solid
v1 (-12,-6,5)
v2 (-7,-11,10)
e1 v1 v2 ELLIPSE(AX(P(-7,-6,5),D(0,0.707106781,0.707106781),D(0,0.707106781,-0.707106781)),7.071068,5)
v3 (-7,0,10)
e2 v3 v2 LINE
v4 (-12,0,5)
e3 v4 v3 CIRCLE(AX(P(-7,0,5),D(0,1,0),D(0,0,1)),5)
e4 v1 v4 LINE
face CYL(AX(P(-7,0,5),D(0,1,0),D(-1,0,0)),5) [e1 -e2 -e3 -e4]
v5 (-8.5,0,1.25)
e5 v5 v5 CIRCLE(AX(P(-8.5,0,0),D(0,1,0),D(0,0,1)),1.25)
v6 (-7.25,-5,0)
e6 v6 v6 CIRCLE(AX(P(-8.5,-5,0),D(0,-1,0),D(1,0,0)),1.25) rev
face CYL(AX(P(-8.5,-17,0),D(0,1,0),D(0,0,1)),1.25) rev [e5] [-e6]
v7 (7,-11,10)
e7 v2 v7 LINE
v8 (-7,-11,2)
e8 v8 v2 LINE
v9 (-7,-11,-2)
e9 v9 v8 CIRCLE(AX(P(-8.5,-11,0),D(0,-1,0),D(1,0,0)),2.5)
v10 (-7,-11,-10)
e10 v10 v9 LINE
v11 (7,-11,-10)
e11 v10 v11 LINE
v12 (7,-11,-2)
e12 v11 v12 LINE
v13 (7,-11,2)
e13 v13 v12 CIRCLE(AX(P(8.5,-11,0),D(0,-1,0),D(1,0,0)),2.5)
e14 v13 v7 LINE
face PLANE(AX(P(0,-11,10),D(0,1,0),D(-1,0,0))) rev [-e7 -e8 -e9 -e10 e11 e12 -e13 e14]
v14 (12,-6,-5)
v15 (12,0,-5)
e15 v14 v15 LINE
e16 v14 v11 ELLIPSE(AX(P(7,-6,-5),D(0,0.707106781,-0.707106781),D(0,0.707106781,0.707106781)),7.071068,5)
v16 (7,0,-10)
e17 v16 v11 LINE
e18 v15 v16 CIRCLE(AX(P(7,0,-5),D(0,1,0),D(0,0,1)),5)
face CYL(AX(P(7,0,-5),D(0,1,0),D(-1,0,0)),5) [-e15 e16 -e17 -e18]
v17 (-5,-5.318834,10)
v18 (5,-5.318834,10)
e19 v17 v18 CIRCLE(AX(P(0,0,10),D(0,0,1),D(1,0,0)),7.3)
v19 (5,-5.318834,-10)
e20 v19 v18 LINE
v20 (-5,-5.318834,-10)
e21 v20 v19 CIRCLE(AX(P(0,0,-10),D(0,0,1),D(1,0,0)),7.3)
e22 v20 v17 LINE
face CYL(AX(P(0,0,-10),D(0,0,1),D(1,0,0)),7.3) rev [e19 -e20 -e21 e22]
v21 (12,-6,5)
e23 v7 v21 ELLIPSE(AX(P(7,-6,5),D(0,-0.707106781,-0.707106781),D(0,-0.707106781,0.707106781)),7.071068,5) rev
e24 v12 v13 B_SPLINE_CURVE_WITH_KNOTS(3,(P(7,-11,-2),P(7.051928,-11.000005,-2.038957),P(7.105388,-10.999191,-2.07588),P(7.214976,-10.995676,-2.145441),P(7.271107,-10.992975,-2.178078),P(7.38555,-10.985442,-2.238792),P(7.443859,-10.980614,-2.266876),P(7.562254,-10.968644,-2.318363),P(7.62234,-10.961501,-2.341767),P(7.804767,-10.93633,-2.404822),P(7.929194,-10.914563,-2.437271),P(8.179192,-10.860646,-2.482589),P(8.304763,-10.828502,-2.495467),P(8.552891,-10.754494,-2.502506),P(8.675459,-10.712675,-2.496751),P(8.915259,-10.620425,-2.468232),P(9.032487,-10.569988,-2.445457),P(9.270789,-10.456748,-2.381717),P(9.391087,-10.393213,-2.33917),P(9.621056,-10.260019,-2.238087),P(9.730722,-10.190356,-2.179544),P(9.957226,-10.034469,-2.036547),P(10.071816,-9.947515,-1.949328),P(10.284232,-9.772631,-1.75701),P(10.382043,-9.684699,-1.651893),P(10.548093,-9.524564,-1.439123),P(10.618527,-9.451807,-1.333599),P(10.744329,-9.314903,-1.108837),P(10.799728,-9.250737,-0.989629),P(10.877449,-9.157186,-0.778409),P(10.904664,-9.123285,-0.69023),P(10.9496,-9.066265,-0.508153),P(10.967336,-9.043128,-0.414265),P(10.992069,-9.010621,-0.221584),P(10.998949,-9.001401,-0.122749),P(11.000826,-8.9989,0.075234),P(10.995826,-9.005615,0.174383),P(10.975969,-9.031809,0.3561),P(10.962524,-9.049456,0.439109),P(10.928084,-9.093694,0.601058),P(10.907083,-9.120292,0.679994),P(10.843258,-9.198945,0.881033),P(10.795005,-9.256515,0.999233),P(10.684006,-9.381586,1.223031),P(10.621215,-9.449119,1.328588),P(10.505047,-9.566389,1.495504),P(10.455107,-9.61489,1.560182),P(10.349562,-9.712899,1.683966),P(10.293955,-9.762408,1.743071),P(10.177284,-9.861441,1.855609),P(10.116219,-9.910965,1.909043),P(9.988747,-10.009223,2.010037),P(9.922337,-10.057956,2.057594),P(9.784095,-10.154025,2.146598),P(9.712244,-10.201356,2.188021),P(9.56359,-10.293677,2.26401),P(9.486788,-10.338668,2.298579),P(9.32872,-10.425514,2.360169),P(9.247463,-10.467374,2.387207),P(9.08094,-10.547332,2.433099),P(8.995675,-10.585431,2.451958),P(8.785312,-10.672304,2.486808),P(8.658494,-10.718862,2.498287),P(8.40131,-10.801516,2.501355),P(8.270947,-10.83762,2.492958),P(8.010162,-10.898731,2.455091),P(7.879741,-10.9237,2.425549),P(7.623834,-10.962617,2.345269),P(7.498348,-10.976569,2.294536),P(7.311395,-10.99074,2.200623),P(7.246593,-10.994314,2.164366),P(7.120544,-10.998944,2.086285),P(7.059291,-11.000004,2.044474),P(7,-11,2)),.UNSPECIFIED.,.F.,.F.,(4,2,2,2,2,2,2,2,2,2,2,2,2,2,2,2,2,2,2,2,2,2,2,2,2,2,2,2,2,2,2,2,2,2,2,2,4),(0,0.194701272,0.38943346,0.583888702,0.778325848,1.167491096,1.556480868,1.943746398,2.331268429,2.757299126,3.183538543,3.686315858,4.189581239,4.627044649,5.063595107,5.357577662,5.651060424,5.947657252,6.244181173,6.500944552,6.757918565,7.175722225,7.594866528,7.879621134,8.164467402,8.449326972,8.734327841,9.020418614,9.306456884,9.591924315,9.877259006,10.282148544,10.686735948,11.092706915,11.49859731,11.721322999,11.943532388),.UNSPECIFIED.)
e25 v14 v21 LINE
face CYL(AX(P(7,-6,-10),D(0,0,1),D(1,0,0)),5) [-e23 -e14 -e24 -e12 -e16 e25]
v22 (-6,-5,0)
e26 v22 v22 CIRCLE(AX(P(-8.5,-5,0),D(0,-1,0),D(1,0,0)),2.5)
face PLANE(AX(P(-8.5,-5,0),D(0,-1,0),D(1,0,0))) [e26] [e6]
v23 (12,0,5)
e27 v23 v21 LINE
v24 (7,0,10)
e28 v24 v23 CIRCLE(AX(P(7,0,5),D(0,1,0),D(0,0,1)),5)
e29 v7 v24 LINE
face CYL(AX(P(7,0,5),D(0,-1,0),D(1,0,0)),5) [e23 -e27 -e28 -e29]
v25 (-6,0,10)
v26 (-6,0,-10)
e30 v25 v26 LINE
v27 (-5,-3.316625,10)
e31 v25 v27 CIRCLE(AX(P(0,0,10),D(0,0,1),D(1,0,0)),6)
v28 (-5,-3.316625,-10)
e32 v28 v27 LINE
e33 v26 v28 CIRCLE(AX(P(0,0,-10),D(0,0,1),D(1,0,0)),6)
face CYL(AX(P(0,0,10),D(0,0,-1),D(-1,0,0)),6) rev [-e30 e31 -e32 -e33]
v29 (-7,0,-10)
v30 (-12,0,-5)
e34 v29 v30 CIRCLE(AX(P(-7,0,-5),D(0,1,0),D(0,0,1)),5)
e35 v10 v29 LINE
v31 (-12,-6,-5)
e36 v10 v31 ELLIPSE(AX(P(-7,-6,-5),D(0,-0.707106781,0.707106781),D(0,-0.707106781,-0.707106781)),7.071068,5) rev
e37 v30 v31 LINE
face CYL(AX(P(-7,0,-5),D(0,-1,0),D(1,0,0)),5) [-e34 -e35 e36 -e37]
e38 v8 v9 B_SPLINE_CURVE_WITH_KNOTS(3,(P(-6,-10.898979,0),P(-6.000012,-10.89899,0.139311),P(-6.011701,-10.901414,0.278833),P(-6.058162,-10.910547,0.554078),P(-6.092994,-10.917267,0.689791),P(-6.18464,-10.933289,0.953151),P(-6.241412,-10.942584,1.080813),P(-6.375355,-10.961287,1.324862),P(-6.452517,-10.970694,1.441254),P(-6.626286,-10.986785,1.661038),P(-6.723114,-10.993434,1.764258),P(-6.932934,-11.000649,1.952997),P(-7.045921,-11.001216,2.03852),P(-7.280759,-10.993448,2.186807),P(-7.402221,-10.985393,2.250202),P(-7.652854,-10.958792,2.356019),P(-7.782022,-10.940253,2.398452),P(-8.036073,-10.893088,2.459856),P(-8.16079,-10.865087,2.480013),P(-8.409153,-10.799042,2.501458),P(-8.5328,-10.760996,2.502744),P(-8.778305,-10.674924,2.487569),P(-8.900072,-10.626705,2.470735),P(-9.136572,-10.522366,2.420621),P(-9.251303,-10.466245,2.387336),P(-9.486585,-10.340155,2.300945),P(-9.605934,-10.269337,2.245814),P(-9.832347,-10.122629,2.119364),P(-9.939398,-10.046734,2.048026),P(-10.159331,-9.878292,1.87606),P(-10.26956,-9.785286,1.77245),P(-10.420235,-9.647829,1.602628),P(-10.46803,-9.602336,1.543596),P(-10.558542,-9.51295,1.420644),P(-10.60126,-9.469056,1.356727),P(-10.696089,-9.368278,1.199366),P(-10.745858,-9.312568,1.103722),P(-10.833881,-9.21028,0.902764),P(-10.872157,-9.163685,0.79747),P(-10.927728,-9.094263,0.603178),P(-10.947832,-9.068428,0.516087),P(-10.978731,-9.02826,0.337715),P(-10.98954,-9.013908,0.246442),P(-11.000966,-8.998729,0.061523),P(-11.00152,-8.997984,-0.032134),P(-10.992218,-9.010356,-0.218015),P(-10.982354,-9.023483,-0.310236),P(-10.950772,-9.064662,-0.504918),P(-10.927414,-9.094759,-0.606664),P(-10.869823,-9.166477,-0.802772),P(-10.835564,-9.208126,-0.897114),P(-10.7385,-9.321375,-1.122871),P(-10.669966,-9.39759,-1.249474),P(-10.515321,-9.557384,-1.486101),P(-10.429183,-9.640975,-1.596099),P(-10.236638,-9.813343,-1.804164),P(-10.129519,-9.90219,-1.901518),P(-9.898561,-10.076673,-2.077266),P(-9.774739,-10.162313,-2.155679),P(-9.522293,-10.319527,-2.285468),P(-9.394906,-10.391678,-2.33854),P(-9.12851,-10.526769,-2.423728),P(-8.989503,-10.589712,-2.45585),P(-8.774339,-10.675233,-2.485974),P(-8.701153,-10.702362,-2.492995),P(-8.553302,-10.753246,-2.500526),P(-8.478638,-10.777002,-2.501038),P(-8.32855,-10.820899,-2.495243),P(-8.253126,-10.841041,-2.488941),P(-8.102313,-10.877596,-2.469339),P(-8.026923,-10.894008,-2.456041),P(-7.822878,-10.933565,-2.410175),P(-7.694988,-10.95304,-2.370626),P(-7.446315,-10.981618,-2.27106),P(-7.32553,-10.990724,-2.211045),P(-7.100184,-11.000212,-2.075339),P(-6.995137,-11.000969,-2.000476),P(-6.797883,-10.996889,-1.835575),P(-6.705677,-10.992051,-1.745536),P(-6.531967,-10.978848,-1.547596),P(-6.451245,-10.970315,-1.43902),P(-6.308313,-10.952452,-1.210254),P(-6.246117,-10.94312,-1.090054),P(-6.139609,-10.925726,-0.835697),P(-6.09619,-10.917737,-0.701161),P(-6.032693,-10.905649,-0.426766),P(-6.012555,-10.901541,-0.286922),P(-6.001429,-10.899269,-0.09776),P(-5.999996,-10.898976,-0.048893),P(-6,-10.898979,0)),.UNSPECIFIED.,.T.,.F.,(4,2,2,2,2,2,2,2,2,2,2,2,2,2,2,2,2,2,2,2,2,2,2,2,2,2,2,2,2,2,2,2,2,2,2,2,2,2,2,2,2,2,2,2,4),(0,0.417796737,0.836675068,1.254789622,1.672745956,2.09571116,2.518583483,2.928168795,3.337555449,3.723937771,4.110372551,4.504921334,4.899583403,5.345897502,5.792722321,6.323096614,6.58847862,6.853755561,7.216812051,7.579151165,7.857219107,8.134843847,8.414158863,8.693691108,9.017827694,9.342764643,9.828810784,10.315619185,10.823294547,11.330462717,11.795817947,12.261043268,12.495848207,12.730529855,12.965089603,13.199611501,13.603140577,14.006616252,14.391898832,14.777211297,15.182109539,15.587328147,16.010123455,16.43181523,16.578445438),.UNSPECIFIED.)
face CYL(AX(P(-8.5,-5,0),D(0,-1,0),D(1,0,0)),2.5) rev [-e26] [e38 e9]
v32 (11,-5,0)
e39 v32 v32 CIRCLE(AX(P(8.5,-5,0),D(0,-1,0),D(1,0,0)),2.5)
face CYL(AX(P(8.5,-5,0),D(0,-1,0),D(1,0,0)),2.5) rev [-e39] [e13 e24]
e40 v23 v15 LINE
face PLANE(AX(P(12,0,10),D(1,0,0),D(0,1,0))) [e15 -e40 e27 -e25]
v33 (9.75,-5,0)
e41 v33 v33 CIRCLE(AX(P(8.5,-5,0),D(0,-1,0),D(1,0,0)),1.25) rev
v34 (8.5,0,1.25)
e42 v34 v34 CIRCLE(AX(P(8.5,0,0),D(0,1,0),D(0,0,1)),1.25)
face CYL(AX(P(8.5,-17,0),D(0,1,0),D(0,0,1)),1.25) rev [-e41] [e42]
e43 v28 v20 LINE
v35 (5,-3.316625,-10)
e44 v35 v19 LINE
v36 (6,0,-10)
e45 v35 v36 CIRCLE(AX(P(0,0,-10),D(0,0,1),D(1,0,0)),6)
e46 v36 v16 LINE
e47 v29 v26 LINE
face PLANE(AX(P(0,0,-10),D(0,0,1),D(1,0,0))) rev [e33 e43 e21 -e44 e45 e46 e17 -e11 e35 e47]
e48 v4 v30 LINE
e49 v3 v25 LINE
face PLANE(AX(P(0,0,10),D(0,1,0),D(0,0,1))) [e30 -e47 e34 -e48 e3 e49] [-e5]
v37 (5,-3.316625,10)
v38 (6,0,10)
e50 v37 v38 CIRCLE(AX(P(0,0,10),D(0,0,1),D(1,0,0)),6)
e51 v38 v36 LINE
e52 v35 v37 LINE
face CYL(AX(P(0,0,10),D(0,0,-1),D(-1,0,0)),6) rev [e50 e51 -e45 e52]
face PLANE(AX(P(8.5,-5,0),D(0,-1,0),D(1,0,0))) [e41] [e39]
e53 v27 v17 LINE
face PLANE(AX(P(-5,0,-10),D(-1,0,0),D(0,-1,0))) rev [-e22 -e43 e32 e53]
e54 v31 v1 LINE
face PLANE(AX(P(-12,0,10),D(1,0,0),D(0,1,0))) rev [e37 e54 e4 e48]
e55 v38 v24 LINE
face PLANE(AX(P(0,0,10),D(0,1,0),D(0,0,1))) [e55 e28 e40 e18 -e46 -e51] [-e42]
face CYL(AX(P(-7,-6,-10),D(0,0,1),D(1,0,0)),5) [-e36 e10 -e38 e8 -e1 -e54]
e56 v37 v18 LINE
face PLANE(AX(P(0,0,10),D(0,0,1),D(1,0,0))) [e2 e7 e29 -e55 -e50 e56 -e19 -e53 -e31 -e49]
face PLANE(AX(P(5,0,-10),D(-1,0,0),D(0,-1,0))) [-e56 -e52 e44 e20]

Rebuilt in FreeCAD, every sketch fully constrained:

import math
import FreeCAD as App
import Part
import Sketcher
from FreeCAD import Vector
Q = App.Units.Quantity


def edges_at(feature, points):
    """Names of the edges that pass closest to the given points."""
    edges = feature.Shape.Edges
    near = lambda p: min(range(len(edges)), key=lambda i: edges[i].distToShape(Part.Vertex(*p))[0])
    return sorted({f"Edge{near(p) + 1}" for p in points})

doc = App.newDocument("Part")
body = doc.addObject("PartDesign::Body", "Body")

# Sketch on XY plane
sketch1 = doc.addObject("Sketcher::SketchObject", "Sketch")
body.addObject(sketch1)
sketch1.AttachmentSupport = (doc.XY_Plane, [""])
sketch1.MapMode = "FlatFace"
sketch1.addGeometry(Part.LineSegment(Vector(12, 0, 0), Vector(6, 0, 0)), False)
sketch1.addGeometry(Part.ArcOfCircle(Part.Circle(Vector(0, 0, 0), Vector(0, 0, 1), 6), math.radians(180), math.radians(360)), False)
sketch1.addGeometry(Part.LineSegment(Vector(-6, 0, 0), Vector(-12, 0, 0)), False)
sketch1.addGeometry(Part.LineSegment(Vector(-12, 0, 0), Vector(-12, -11, 0)), False)
sketch1.addGeometry(Part.LineSegment(Vector(-12, -11, 0), Vector(12, -11, 0)), False)
sketch1.addGeometry(Part.LineSegment(Vector(12, -11, 0), Vector(12, 0, 0)), False)
sketch1.addConstraint(Sketcher.Constraint("Coincident", 0, 2, 1, 2))
sketch1.addConstraint(Sketcher.Constraint("Coincident", 1, 1, 2, 1))
sketch1.addConstraint(Sketcher.Constraint("Coincident", 2, 2, 3, 1))
sketch1.addConstraint(Sketcher.Constraint("Coincident", 3, 2, 4, 1))
sketch1.addConstraint(Sketcher.Constraint("Coincident", 4, 2, 5, 1))
sketch1.addConstraint(Sketcher.Constraint("Coincident", 5, 2, 0, 1))
sketch1.addConstraint(Sketcher.Constraint("Horizontal", 0))
sketch1.addConstraint(Sketcher.Constraint("Horizontal", 2))
sketch1.addConstraint(Sketcher.Constraint("Vertical", 3))
sketch1.addConstraint(Sketcher.Constraint("Horizontal", 4))
sketch1.addConstraint(Sketcher.Constraint("Vertical", 5))
sketch1.addConstraint(Sketcher.Constraint("Coincident", 1, 3, -1, 1))
sketch1.addConstraint(Sketcher.Constraint("Symmetric", 2, 2, 5, 2, -1, 1))
sketch1.addConstraint(Sketcher.Constraint("PointOnObject", 0, 2, -1))
sketch1.addConstraint(Sketcher.Constraint("Radius", 1, Q("6 mm")))
sketch1.addConstraint(Sketcher.Constraint("DistanceX", 0, 2, 0, 1, Q("6 mm")))
sketch1.addConstraint(Sketcher.Constraint("DistanceY", 3, 2, 3, 1, Q("11 mm")))
pad1 = doc.addObject("PartDesign::Pad", "Pad")
body.addObject(pad1)
pad1.Profile = sketch1
pad1.Length = 20
pad1.Midplane = True

# Sketch on XY plane
sketch2 = doc.addObject("Sketcher::SketchObject", "Sketch001")
body.addObject(sketch2)
sketch2.AttachmentSupport = (doc.XY_Plane, [""])
sketch2.MapMode = "FlatFace"
sketch2.addGeometry(Part.ArcOfCircle(Part.Circle(Vector(0, 0, 0), Vector(0, 0, 1), 7), math.radians(-133), math.radians(-47)), False)
sketch2.addGeometry(Part.LineSegment(Vector(5, -5, 0), Vector(5, 0, 0)), False)
sketch2.addGeometry(Part.LineSegment(Vector(5, 0, 0), Vector(-5, 0, 0)), False)
sketch2.addGeometry(Part.LineSegment(Vector(-5, 0, 0), Vector(-5, -5, 0)), False)
sketch2.addConstraint(Sketcher.Constraint("Coincident", 0, 2, 1, 1))
sketch2.addConstraint(Sketcher.Constraint("Coincident", 1, 2, 2, 1))
sketch2.addConstraint(Sketcher.Constraint("Coincident", 2, 2, 3, 1))
sketch2.addConstraint(Sketcher.Constraint("Coincident", 3, 2, 0, 1))
sketch2.addConstraint(Sketcher.Constraint("Vertical", 1))
sketch2.addConstraint(Sketcher.Constraint("Horizontal", 2))
sketch2.addConstraint(Sketcher.Constraint("Vertical", 3))
sketch2.addConstraint(Sketcher.Constraint("Coincident", 0, 3, -1, 1))
sketch2.addConstraint(Sketcher.Constraint("Symmetric", 1, 2, 2, 2, -1, 1))
sketch2.addConstraint(Sketcher.Constraint("Radius", 0, Q("7.3 mm")))
sketch2.addConstraint(Sketcher.Constraint("DistanceX", 2, 2, 2, 1, Q("10 mm")))
pocket1 = doc.addObject("PartDesign::Pocket", "Pocket")
body.addObject(pocket1)
pocket1.Profile = sketch2
pocket1.Type = "ThroughAll"
pocket1.Midplane = True

# Sketch on XZ plane
sketch3 = doc.addObject("Sketcher::SketchObject", "Sketch002")
body.addObject(sketch3)
sketch3.AttachmentSupport = (doc.XZ_Plane, [""])
sketch3.MapMode = "FlatFace"
sketch3.addGeometry(Part.Circle(Vector(-8.5, 0, 0), Vector(0, 0, 1), 1.2), False)
sketch3.addGeometry(Part.Circle(Vector(8.5, 0, 0), Vector(0, 0, 1), 1.2), False)
sketch3.addConstraint(Sketcher.Constraint("Equal", 0, 1))
sketch3.addConstraint(Sketcher.Constraint("Symmetric", 0, 3, 1, 3, -1, 1))
sketch3.addConstraint(Sketcher.Constraint("PointOnObject", 0, 3, -1))
sketch3.addConstraint(Sketcher.Constraint("Diameter", 0, Q("2.5 mm")))
sketch3.addConstraint(Sketcher.Constraint("DistanceX", 0, 3, 1, 3, Q("17 mm")))
pocket2 = doc.addObject("PartDesign::Pocket", "Pocket001")
body.addObject(pocket2)
pocket2.Profile = sketch3
pocket2.Length = 17
pocket2.Reversed = True
doc.recompute()

fillet = doc.addObject("PartDesign::Fillet", "Fillet")
body.addObject(fillet)
fillet.Base = (pocket2, edges_at(pocket2, [
    (12, -5.5, 10),
    (-12, -5.5, 10),
    (-12, -5.5, -10),
    (12, -5.5, -10),
]))
fillet.Radius = 5

# Sketch on XY plane
sketch4 = doc.addObject("Sketcher::SketchObject", "Sketch003")
body.addObject(sketch4)
sketch4.AttachmentSupport = (doc.XY_Plane, [""])
sketch4.MapMode = "FlatFace"
sketch4.addGeometry(Part.ArcOfCircle(Part.Circle(Vector(7, -6, 0), Vector(0, 0, 1), 5), math.radians(-90), math.radians(0)), False)
sketch4.addGeometry(Part.LineSegment(Vector(7, -11, 0), Vector(12, -11, 0)), False)
sketch4.addGeometry(Part.LineSegment(Vector(12, -11, 0), Vector(12, -6, 0)), False)
sketch4.addGeometry(Part.ArcOfCircle(Part.Circle(Vector(-7, -6, 0), Vector(0, 0, 1), 5), math.radians(180), math.radians(270)), False)
sketch4.addGeometry(Part.LineSegment(Vector(-12, -6, 0), Vector(-12, -11, 0)), False)
sketch4.addGeometry(Part.LineSegment(Vector(-12, -11, 0), Vector(-7, -11, 0)), False)
sketch4.addConstraint(Sketcher.Constraint("Tangent", 0, 1, 1, 1))
sketch4.addConstraint(Sketcher.Constraint("Coincident", 1, 2, 2, 1))
sketch4.addConstraint(Sketcher.Constraint("Tangent", 2, 2, 0, 2))
sketch4.addConstraint(Sketcher.Constraint("Tangent", 3, 1, 4, 1))
sketch4.addConstraint(Sketcher.Constraint("Coincident", 4, 2, 5, 1))
sketch4.addConstraint(Sketcher.Constraint("Tangent", 5, 2, 3, 2))
sketch4.addConstraint(Sketcher.Constraint("Horizontal", 1))
sketch4.addConstraint(Sketcher.Constraint("Vertical", 2))
sketch4.addConstraint(Sketcher.Constraint("Vertical", 4))
sketch4.addConstraint(Sketcher.Constraint("Horizontal", 5))
sketch4.addConstraint(Sketcher.Constraint("Equal", 0, 3))
sketch4.addConstraint(Sketcher.Constraint("Symmetric", 0, 3, 3, 3, -2))
sketch4.addConstraint(Sketcher.Constraint("Radius", 0, Q("5 mm")))
sketch4.addConstraint(Sketcher.Constraint("DistanceX", -1, 1, 0, 3, Q("7 mm")))
sketch4.addConstraint(Sketcher.Constraint("DistanceY", 0, 3, -1, 1, Q("6 mm")))
pocket3 = doc.addObject("PartDesign::Pocket", "Pocket002")
body.addObject(pocket3)
pocket3.Profile = sketch4
pocket3.Type = "ThroughAll"
pocket3.Midplane = True

# Sketch on XZ plane
sketch5 = doc.addObject("Sketcher::SketchObject", "Sketch004")
body.addObject(sketch5)
sketch5.AttachmentSupport = (doc.XZ_Plane, [""])
sketch5.MapMode = "FlatFace"
sketch5.AttachmentOffset = App.Placement(Vector(0, 0, 11), App.Rotation())
sketch5.addGeometry(Part.Circle(Vector(-8.5, 0, 0), Vector(0, 0, 1), 2.5), False)
sketch5.addGeometry(Part.Circle(Vector(8.5, 0, 0), Vector(0, 0, 1), 2.5), False)
sketch5.addConstraint(Sketcher.Constraint("Equal", 0, 1))
sketch5.addConstraint(Sketcher.Constraint("Symmetric", 0, 3, 1, 3, -1, 1))
sketch5.addConstraint(Sketcher.Constraint("PointOnObject", 0, 3, -1))
sketch5.addConstraint(Sketcher.Constraint("Diameter", 0, Q("5 mm")))
sketch5.addConstraint(Sketcher.Constraint("DistanceX", 0, 3, 1, 3, Q("17 mm")))
pocket4 = doc.addObject("PartDesign::Pocket", "Pocket003")
body.addObject(pocket4)
pocket4.Profile = sketch5
pocket4.Length = 6

doc.recompute()
